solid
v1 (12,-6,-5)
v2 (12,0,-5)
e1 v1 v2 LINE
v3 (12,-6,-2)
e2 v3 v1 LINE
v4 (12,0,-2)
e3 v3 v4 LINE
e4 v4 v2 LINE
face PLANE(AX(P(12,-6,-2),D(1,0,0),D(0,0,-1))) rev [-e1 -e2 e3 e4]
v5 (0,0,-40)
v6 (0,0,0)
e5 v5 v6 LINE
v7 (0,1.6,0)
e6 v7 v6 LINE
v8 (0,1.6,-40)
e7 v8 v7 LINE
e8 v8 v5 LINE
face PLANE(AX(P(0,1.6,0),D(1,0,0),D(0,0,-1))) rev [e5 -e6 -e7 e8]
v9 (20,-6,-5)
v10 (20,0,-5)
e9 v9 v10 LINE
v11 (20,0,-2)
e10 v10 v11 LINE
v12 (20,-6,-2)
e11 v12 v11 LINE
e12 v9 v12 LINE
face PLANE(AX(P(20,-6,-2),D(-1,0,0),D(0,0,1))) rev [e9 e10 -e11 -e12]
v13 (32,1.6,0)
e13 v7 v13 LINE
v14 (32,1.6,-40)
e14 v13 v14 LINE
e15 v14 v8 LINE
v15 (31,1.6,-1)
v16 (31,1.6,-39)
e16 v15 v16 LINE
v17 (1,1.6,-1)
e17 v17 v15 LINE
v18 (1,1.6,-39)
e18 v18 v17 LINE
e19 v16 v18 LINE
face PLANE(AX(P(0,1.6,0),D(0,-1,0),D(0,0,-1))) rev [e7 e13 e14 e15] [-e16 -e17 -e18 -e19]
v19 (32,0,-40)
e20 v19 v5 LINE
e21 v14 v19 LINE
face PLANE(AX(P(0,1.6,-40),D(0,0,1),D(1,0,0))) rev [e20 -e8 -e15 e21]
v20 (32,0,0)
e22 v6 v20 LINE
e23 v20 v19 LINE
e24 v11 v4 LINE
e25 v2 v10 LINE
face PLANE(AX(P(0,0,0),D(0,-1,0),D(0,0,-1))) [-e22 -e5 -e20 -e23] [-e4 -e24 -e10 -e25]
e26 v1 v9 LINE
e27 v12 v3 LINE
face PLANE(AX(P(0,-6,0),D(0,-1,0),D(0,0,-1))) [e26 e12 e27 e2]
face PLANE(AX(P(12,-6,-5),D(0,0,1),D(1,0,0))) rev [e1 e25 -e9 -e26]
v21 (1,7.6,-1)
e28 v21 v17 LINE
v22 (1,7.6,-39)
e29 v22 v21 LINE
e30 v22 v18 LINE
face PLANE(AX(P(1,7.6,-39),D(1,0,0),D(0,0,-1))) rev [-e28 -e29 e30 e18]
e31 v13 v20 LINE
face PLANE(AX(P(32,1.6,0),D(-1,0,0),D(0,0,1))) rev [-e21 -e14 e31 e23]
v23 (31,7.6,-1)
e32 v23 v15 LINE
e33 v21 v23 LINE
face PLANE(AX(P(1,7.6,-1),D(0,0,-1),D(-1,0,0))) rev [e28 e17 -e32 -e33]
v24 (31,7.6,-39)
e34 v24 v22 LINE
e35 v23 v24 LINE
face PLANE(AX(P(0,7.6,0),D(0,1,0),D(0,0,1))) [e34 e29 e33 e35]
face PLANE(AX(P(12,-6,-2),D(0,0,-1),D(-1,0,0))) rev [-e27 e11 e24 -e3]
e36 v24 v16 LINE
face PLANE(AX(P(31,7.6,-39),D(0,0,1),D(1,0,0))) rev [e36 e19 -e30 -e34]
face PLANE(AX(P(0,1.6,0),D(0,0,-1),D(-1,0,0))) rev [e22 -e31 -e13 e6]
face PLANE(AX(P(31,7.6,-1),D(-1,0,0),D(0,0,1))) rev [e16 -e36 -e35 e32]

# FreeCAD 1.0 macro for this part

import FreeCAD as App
import Part
import Sketcher
from FreeCAD import Vector


def add_polygon(sketch, points):
    """Adds a closed chain of lines whose ends are joined by coincident constraints."""
    first, n = sketch.GeometryCount, len(points)
    for a, b in zip(points, points[1:] + points[:1]):
        sketch.addGeometry(Part.LineSegment(App.Vector(*a, 0), App.Vector(*b, 0)), False)
    for i in range(n):
        sketch.addConstraint(Sketcher.Constraint("Coincident", first + i, 2, first + (i + 1) % n, 1))

doc = App.newDocument("Part")
body = doc.addObject("PartDesign::Body", "Body")

# Sketch on XZ plane
sketch1 = body.newObject("Sketcher::SketchObject", "Sketch")
sketch1.AttachmentSupport = (doc.getObject("XZ_Plane"), [""])
sketch1.MapMode = "FlatFace"
add_polygon(sketch1, [(0, -40), (0, 0), (32, 0), (32, -40)])  # lines 0-3
sketch1.addConstraint(Sketcher.Constraint("Vertical", 0))
sketch1.addConstraint(Sketcher.Constraint("Horizontal", 1))
sketch1.addConstraint(Sketcher.Constraint("Vertical", 2))
sketch1.addConstraint(Sketcher.Constraint("Horizontal", 3))
sketch1.addConstraint(Sketcher.Constraint("Coincident", 0, 2, -1, 1))
sketch1.addConstraint(Sketcher.Constraint("DistanceX", 1, 1, 1, 2, 32.0))
sketch1.addConstraint(Sketcher.Constraint("DistanceY", 0, 1, 0, 2, 40.0))
pad1 = body.newObject("PartDesign::Pad", "Pad")
pad1.Profile = sketch1
pad1.Length = 1.6
pad1.Reversed = True

# Sketch on XZ plane
sketch2 = body.newObject("Sketcher::SketchObject", "Sketch001")
sketch2.AttachmentSupport = (doc.getObject("XZ_Plane"), [""])
sketch2.MapMode = "FlatFace"
sketch2.AttachmentOffset = App.Placement(Vector(0, 0, -1.6), App.Rotation())
add_polygon(sketch2, [(1, -39), (1, -1), (31, -1), (31, -39)])  # lines 0-3
sketch2.addConstraint(Sketcher.Constraint("Vertical", 0))
sketch2.addConstraint(Sketcher.Constraint("Horizontal", 1))
sketch2.addConstraint(Sketcher.Constraint("Vertical", 2))
sketch2.addConstraint(Sketcher.Constraint("Horizontal", 3))
sketch2.addConstraint(Sketcher.Constraint("DistanceX", 1, 1, 1, 2, 30.0))
sketch2.addConstraint(Sketcher.Constraint("DistanceY", 0, 1, 0, 2, 38.0))
sketch2.addConstraint(Sketcher.Constraint("DistanceX", -1, 1, 0, 2, 1.0))
sketch2.addConstraint(Sketcher.Constraint("DistanceY", 0, 2, -1, 1, 1.0))
pad2 = body.newObject("PartDesign::Pad", "Pad001")
pad2.Profile = sketch2
pad2.Length = 6
pad2.Reversed = True

# Sketch on XZ plane
sketch3 = body.newObject("Sketcher::SketchObject", "Sketch002")
sketch3.AttachmentSupport = (doc.getObject("XZ_Plane"), [""])
sketch3.MapMode = "FlatFace"
add_polygon(sketch3, [(12, -2), (12, -5), (20, -5), (20, -2)])  # lines 0-3
sketch3.addConstraint(Sketcher.Constraint("Vertical", 0))
sketch3.addConstraint(Sketcher.Constraint("Horizontal", 1))
sketch3.addConstraint(Sketcher.Constraint("Vertical", 2))
sketch3.addConstraint(Sketcher.Constraint("Horizontal", 3))
sketch3.addConstraint(Sketcher.Constraint("DistanceX", 1, 1, 1, 2, 8.0))
sketch3.addConstraint(Sketcher.Constraint("DistanceY", 0, 2, 0, 1, 3.0))
sketch3.addConstraint(Sketcher.Constraint("DistanceX", -1, 1, 0, 2, 12.0))
sketch3.addConstraint(Sketcher.Constraint("DistanceY", 0, 2, -1, 1, 5.0))
pad3 = body.newObject("PartDesign::Pad", "Pad002")
pad3.Profile = sketch3
pad3.Length = 6

doc.recompute()
